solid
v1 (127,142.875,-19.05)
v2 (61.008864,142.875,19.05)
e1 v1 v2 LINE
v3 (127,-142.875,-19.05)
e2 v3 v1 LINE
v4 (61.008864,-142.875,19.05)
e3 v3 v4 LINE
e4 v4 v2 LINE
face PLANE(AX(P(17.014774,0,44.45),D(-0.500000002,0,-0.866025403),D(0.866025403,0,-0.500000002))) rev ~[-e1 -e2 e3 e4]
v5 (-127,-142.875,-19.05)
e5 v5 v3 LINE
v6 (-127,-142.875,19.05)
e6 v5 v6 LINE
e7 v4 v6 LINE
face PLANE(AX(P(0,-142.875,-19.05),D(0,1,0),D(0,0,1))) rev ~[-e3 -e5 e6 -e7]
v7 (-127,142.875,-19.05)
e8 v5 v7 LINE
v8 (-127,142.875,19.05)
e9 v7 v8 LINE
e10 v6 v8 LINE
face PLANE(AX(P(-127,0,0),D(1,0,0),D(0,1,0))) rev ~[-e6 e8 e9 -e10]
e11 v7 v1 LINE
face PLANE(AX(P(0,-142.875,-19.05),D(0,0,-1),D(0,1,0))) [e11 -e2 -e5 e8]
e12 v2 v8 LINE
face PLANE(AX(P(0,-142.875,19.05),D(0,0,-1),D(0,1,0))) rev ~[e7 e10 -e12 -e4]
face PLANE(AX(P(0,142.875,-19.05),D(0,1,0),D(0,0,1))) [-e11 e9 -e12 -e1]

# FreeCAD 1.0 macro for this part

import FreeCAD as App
import Part
import Sketcher
from FreeCAD import Vector
Q = App.Units.Quantity


def add_polygon(sketch, points):
    """Adds a closed chain of lines whose ends are joined by coincident constraints."""
    first, n = sketch.GeometryCount, len(points)
    for a, b in zip(points, points[1:] + points[:1]):
        sketch.addGeometry(Part.LineSegment(App.Vector(*a, 0), App.Vector(*b, 0)), False)
    for i in range(n):
        sketch.addConstraint(Sketcher.Constraint("Coincident", first + i, 2, first + (i + 1) % n, 1))

doc = App.newDocument("Part")
body = doc.addObject("PartDesign::Body", "Body")

sketch1 = body.newObject("Sketcher::SketchObject", "Sketch")
sketch1.AttachmentSupport = (doc.getObject("YZ_Plane"), [""])
sketch1.MapMode = "FlatFace"
add_polygon(sketch1, [(-143, 19), (-143, -19), (143, -19), (143, 19)])
sketch1.addConstraint(Sketcher.Constraint("Vertical", 0))
sketch1.addConstraint(Sketcher.Constraint("Horizontal", 1))
sketch1.addConstraint(Sketcher.Constraint("Vertical", 2))
sketch1.addConstraint(Sketcher.Constraint("Horizontal", 3))
sketch1.addConstraint(Sketcher.Constraint("Symmetric", 0, 2, 2, 2, -1, 1))
sketch1.addConstraint(Sketcher.Constraint("DistanceY", 0, 2, 0, 1, Q("1.5 in")))
sketch1.addConstraint(Sketcher.Constraint("DistanceX", 1, 1, 1, 2, Q("11.25 in")))
pad1 = body.newObject("PartDesign::Pad", "Pad")
pad1.Profile = sketch1
pad1.Length = Q("10 in")
pad1.Midplane = True

sketch2 = body.newObject("Sketcher::SketchObject", "Sketch001")
sketch2.AttachmentSupport = (doc.getObject("XZ_Plane"), [""])
sketch2.MapMode = "FlatFace"
add_polygon(sketch2, [(152, 44), (17, 44), (152, -34)])
sketch2.addConstraint(Sketcher.Constraint("Horizontal", 0))
sketch2.addConstraint(Sketcher.Constraint("Vertical", 2))
sketch2.addConstraint(Sketcher.Constraint("DistanceX", -1, 1, 1, 2, Q("6 in")))
sketch2.addConstraint(Sketcher.Constraint("Angle", 1, Q("-30 deg")))
sketch2.addConstraint(Sketcher.Constraint("DistanceY", -1, 1, 0, 2, Q("1.75 in")))
sketch2.addConstraint(Sketcher.Constraint("DistanceX", 0, 2, 0, 1, Q("135.385226 mm")))
pocket1 = body.newObject("PartDesign::Pocket", "Pocket")
pocket1.Profile = sketch2
pocket1.Length = Q("16 in")
pocket1.Midplane = True

doc.recompute()
